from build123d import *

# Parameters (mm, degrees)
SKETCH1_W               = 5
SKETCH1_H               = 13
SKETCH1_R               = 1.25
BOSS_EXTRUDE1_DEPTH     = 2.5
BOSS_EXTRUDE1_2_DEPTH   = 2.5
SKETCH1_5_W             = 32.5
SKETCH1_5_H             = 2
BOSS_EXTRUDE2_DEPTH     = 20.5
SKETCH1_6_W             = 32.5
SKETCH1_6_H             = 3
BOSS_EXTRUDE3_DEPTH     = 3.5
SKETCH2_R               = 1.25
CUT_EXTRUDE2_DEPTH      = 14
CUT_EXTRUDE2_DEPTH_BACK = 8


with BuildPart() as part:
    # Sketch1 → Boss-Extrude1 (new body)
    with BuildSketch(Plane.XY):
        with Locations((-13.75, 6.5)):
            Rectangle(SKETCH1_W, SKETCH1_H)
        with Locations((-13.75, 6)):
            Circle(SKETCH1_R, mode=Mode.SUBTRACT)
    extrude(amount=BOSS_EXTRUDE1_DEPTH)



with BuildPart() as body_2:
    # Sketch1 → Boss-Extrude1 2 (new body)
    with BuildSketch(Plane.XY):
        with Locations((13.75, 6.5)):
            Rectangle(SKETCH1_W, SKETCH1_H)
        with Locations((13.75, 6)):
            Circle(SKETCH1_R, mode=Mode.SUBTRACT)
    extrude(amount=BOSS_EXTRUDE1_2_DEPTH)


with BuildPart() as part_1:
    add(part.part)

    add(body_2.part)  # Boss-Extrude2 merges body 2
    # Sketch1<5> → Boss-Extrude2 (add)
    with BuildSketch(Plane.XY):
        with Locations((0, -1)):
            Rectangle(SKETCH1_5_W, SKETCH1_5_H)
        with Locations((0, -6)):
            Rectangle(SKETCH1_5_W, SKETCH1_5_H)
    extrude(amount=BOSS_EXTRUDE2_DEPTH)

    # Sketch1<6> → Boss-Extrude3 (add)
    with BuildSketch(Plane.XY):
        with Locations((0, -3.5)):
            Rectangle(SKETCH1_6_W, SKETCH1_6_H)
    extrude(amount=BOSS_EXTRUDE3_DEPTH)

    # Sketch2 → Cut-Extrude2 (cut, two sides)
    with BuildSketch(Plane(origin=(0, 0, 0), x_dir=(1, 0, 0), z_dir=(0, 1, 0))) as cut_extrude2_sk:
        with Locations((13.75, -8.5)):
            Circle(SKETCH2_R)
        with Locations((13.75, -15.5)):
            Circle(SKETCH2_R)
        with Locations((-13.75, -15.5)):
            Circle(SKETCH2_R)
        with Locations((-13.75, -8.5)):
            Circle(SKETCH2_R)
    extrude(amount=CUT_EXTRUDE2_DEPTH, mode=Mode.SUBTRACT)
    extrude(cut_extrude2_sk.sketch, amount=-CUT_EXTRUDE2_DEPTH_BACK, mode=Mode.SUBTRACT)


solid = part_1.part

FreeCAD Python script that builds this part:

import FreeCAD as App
import Part
import Sketcher

V = App.Vector
Q = App.Units.Quantity


def add_polygon(sketch, points):
    """Adds a closed chain of lines whose ends are joined by coincident constraints."""
    first, n = sketch.GeometryCount, len(points)
    for a, b in zip(points, points[1:] + points[:1]):
        sketch.addGeometry(Part.LineSegment(App.Vector(*a, 0), App.Vector(*b, 0)), False)
    for i in range(n):
        sketch.addConstraint(Sketcher.Constraint("Coincident", first + i, 2, first + (i + 1) % n, 1))

doc = App.newDocument("Part")
params = doc.addObject("Spreadsheet::Sheet", "Params")
for row, (alias, value) in enumerate([
    ("sketch1_diameter", "2.5 mm"),
    ("sketch1_width", "5 mm"),
    ("sketch1_height", "13 mm"),
    ("pad1_length", "2.5 mm"),
    ("sketch2_diameter", "2.5 mm"),
    ("sketch2_width", "5 mm"),
    ("sketch2_height", "13 mm"),
    ("pad2_length", "2.5 mm"),
    ("sketch3_height", "2 mm"),
    ("sketch3_width", "32.5 mm"),
    ("pad3_length", "20.5 mm"),
    ("sketch4_height", "3 mm"),
    ("sketch4_width", "32.5 mm"),
    ("pad4_length", "3.5 mm"),
    ("sketch5_diameter", "2.5 mm"),
], start=1):
    params.set(f"A{row}", alias)
    params.set(f"B{row}", "=" + value)
    params.setAlias(f"B{row}", alias)

body = doc.addObject("PartDesign::Body", "Body")

# Sketch on XY plane
sketch1 = body.newObject("Sketcher::SketchObject", "Sketch")
sketch1.AttachmentSupport = (doc.getObject("XY_Plane"), [""])
sketch1.MapMode = "FlatFace"
add_polygon(sketch1, [(-16.25, 13), (-16.25, 0), (-11.25, 0), (-11.25, 13)])  # lines 0-3
sketch1.addGeometry(Part.Circle(V(-13.75, 6, 0), V(0, 0, 1), 1.25), False)  # 4
sketch1.addConstraint(Sketcher.Constraint("Vertical", 0))
sketch1.addConstraint(Sketcher.Constraint("Horizontal", 1))
sketch1.addConstraint(Sketcher.Constraint("Vertical", 2))
sketch1.addConstraint(Sketcher.Constraint("Horizontal", 3))
sketch1.addConstraint(Sketcher.Constraint("PointOnObject", 0, 2, -1))
sketch1.addConstraint(Sketcher.Constraint("Diameter", 4, Q("2.5 mm")))
sketch1.addConstraint(Sketcher.Constraint("DistanceX", 1, 1, 1, 2, Q("5 mm")))
sketch1.addConstraint(Sketcher.Constraint("DistanceY", 0, 2, 0, 1, Q("13 mm")))
sketch1.addConstraint(Sketcher.Constraint("DistanceY", -1, 1, 4, 3, Q("6 mm")))
sketch1.addConstraint(Sketcher.Constraint("DistanceX", 0, 2, 4, 3, Q("2.5 mm")))
sketch1.addConstraint(Sketcher.Constraint("DistanceX", 4, 3, -1, 1, Q("13.75 mm")))
sketch1.setExpression("Constraints[9]", "Params.sketch1_diameter")
sketch1.setExpression("Constraints[10]", "Params.sketch1_width")
sketch1.setExpression("Constraints[11]", "Params.sketch1_height")
pad1 = body.newObject("PartDesign::Pad", "Pad")
pad1.Profile = sketch1
pad1.setExpression("Length", "Params.pad1_length")
body2 = doc.addObject("PartDesign::Body", "Body001")

# Sketch on XY plane
sketch2 = body2.newObject("Sketcher::SketchObject", "Sketch001")
sketch2.AttachmentSupport = (doc.getObject("XY_Plane001"), [""])
sketch2.MapMode = "FlatFace"
add_polygon(sketch2, [(11.25, 13), (11.25, 0), (16.25, 0), (16.25, 13)])  # lines 0-3
sketch2.addGeometry(Part.Circle(V(13.75, 6, 0), V(0, 0, 1), 1.25), False)  # 4
sketch2.addConstraint(Sketcher.Constraint("Vertical", 0))
sketch2.addConstraint(Sketcher.Constraint("Horizontal", 1))
sketch2.addConstraint(Sketcher.Constraint("Vertical", 2))
sketch2.addConstraint(Sketcher.Constraint("Horizontal", 3))
sketch2.addConstraint(Sketcher.Constraint("PointOnObject", 0, 2, -1))
sketch2.addConstraint(Sketcher.Constraint("Diameter", 4, Q("2.5 mm")))
sketch2.addConstraint(Sketcher.Constraint("DistanceX", 1, 1, 1, 2, Q("5 mm")))
sketch2.addConstraint(Sketcher.Constraint("DistanceY", 0, 2, 0, 1, Q("13 mm")))
sketch2.addConstraint(Sketcher.Constraint("DistanceY", -1, 1, 4, 3, Q("6 mm")))
sketch2.addConstraint(Sketcher.Constraint("DistanceX", 0, 2, 4, 3, Q("2.5 mm")))
sketch2.addConstraint(Sketcher.Constraint("DistanceX", -1, 1, 4, 3, Q("13.75 mm")))
sketch2.setExpression("Constraints[9]", "Params.sketch2_diameter")
sketch2.setExpression("Constraints[10]", "Params.sketch2_width")
sketch2.setExpression("Constraints[11]", "Params.sketch2_height")
pad2 = body2.newObject("PartDesign::Pad", "Pad001")
pad2.Profile = sketch2
pad2.setExpression("Length", "Params.pad2_length")
body.AllowCompound = True
doc.recompute()

boolean = body.newObject("PartDesign::Boolean", "Boolean")
boolean.Type = "Fuse"
boolean.addObjects([body2])

# Sketch on XY plane
sketch3 = body.newObject("Sketcher::SketchObject", "Sketch002")
sketch3.AttachmentSupport = (doc.getObject("XY_Plane"), [""])
sketch3.MapMode = "FlatFace"
add_polygon(sketch3, [(-16.25, 0), (-16.25, -2), (16.25, -2), (16.25, 0)])  # lines 0-3
add_polygon(sketch3, [(-16.25, -5), (-16.25, -7), (16.25, -7), (16.25, -5)])  # lines 4-7
sketch3.addConstraint(Sketcher.Constraint("Vertical", 0))
sketch3.addConstraint(Sketcher.Constraint("Horizontal", 1))
sketch3.addConstraint(Sketcher.Constraint("Vertical", 2))
sketch3.addConstraint(Sketcher.Constraint("Horizontal", 3))
sketch3.addConstraint(Sketcher.Constraint("Vertical", 4))
sketch3.addConstraint(Sketcher.Constraint("Horizontal", 5))
sketch3.addConstraint(Sketcher.Constraint("Vertical", 6))
sketch3.addConstraint(Sketcher.Constraint("Horizontal", 7))
sketch3.addConstraint(Sketcher.Constraint("Symmetric", 2, 2, 3, 2, -1, 1))
sketch3.addConstraint(Sketcher.Constraint("Vertical", 3, 2, 4, 2))
sketch3.addConstraint(Sketcher.Constraint("Vertical", 2, 2, 5, 2))
sketch3.addConstraint(Sketcher.Constraint("Equal", 2, 4))
sketch3.addConstraint(Sketcher.Constraint("DistanceY", 0, 2, 0, 1, Q("2 mm")))
sketch3.addConstraint(Sketcher.Constraint("DistanceX", 1, 1, 1, 2, Q("32.5 mm")))
sketch3.addConstraint(Sketcher.Constraint("DistanceY", 4, 2, -1, 1, Q("7 mm")))
sketch3.setExpression("Constraints[20]", "Params.sketch3_height")
sketch3.setExpression("Constraints[21]", "Params.sketch3_width")
pad3 = body.newObject("PartDesign::Pad", "Pad002")
pad3.Profile = sketch3
pad3.setExpression("Length", "Params.pad3_length")

# Sketch on XY plane
sketch4 = body.newObject("Sketcher::SketchObject", "Sketch003")
sketch4.AttachmentSupport = (doc.getObject("XY_Plane"), [""])
sketch4.MapMode = "FlatFace"
add_polygon(sketch4, [(-16.25, -2), (-16.25, -5), (16.25, -5), (16.25, -2)])  # lines 0-3
sketch4.addConstraint(Sketcher.Constraint("Vertical", 0))
sketch4.addConstraint(Sketcher.Constraint("Horizontal", 1))
sketch4.addConstraint(Sketcher.Constraint("Vertical", 2))
sketch4.addConstraint(Sketcher.Constraint("Horizontal", 3))
sketch4.addConstraint(Sketcher.Constraint("DistanceY", 0, 2, 0, 1, Q("3 mm")))
sketch4.addConstraint(Sketcher.Constraint("DistanceX", 1, 1, 1, 2, Q("32.5 mm")))
sketch4.addConstraint(Sketcher.Constraint("DistanceY", 0, 2, -1, 1, Q("5 mm")))
sketch4.addConstraint(Sketcher.Constraint("DistanceX", 0, 2, -1, 1, Q("16.25 mm")))
sketch4.setExpression("Constraints[8]", "Params.sketch4_height")
sketch4.setExpression("Constraints[9]", "Params.sketch4_width")
pad4 = body.newObject("PartDesign::Pad", "Pad003")
pad4.Profile = sketch4
pad4.setExpression("Length", "Params.pad4_length")

# Sketch on XZ plane
sketch5 = body.newObject("Sketcher::SketchObject", "Sketch004")
sketch5.AttachmentSupport = (doc.getObject("XZ_Plane"), [""])
sketch5.MapMode = "FlatFace"
sketch5.addGeometry(Part.Circle(V(13.75, 8.5, 0), V(0, 0, 1), 1.25), False)
sketch5.addGeometry(Part.Circle(V(13.75, 15.5, 0), V(0, 0, 1), 1.25), False)
sketch5.addGeometry(Part.Circle(V(-13.75, 15.5, 0), V(0, 0, 1), 1.25), False)
sketch5.addGeometry(Part.Circle(V(-13.75, 8.5, 0), V(0, 0, 1), 1.25), False)
sketch5.addConstraint(Sketcher.Constraint("Equal", 0, 1))
sketch5.addConstraint(Sketcher.Constraint("Equal", 1, 2))
sketch5.addConstraint(Sketcher.Constraint("Equal", 2, 3))
sketch5.addConstraint(Sketcher.Constraint("Symmetric", 1, 3, 2, 3, -2))
sketch5.addConstraint(Sketcher.Constraint("Symmetric", 0, 3, 3, 3, -2))
sketch5.addConstraint(Sketcher.Constraint("Vertical", 0, 3, 1, 3))
sketch5.addConstraint(Sketcher.Constraint("Diameter", 0, Q("2.5 mm")))
sketch5.addConstraint(Sketcher.Constraint("DistanceY", 0, 3, 1, 3, Q("7 mm")))
sketch5.addConstraint(Sketcher.Constraint("DistanceY", -1, 1, 0, 3, Q("8.5 mm")))
sketch5.addConstraint(Sketcher.Constraint("DistanceX", 2, 3, 1, 3, Q("27.5 mm")))
sketch5.setExpression("Constraints[6]", "Params.sketch5_diameter")
pocket1 = body.newObject("PartDesign::Pocket", "Pocket")
pocket1.Profile = sketch5
pocket1.Type = "ThroughAll"
pocket1.Midplane = True

doc.recompute()
